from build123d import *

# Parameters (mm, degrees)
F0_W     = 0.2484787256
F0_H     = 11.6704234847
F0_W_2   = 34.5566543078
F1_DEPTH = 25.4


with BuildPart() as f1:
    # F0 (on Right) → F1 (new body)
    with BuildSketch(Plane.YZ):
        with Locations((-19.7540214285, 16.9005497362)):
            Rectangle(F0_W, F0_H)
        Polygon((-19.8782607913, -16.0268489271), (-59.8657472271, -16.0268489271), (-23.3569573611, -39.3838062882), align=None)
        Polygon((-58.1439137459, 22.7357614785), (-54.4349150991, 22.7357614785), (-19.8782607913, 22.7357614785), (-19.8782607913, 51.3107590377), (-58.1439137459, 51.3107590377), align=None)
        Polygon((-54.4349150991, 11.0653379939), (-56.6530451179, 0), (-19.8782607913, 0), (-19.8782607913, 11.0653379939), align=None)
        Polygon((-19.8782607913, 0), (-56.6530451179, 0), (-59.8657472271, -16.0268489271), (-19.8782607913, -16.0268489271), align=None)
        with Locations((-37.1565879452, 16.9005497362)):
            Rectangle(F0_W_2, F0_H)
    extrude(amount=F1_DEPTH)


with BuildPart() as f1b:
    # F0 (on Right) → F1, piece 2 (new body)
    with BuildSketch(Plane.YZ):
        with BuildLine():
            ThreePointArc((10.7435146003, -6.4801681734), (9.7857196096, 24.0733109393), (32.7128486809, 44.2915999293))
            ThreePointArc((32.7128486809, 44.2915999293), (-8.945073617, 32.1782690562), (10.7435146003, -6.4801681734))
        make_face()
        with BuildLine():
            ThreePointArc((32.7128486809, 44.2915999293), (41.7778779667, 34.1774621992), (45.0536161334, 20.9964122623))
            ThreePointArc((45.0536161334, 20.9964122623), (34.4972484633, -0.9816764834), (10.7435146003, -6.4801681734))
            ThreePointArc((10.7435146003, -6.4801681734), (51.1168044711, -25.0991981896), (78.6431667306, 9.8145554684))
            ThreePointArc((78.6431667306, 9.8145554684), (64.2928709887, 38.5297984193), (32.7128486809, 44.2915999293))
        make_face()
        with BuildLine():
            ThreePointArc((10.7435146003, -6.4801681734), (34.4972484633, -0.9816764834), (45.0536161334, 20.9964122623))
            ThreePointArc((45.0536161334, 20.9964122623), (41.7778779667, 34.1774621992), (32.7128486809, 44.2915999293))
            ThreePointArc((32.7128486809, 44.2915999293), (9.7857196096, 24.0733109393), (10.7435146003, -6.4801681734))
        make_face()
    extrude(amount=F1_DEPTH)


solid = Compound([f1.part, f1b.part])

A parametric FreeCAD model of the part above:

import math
import FreeCAD as App
import Part
import Sketcher

V = App.Vector
Q = App.Units.Quantity


def add_polygon(sketch, points):
    """Adds a closed chain of lines whose ends are joined by coincident constraints."""
    first, n = sketch.GeometryCount, len(points)
    for a, b in zip(points, points[1:] + points[:1]):
        sketch.addGeometry(Part.LineSegment(App.Vector(*a, 0), App.Vector(*b, 0)), False)
    for i in range(n):
        sketch.addConstraint(Sketcher.Constraint("Coincident", first + i, 2, first + (i + 1) % n, 1))

doc = App.newDocument("Part")
body = doc.addObject("PartDesign::Body", "Body")

# Sketch on YZ plane
sketch1 = doc.addObject("Sketcher::SketchObject", "Sketch")
body.addObject(sketch1)
sketch1.AttachmentSupport = (doc.YZ_Plane, [""])
sketch1.MapMode = "FlatFace"
add_polygon(sketch1, [(-19.88, 11.07), (-19.63, 11.07), (-19.63, 22.74), (-19.88, 22.74), (-19.88, 51.31), (-58.14, 51.31), (-58.14, 22.74), (-54.43, 22.74), (-54.43, 11.07), (-59.87, -16.03), (-23.36, -39.38), (-19.88, -16.03)])  # lines 0-11
sketch1.addConstraint(Sketcher.Constraint("Horizontal", 0))
sketch1.addConstraint(Sketcher.Constraint("Vertical", 1))
sketch1.addConstraint(Sketcher.Constraint("Horizontal", 2))
sketch1.addConstraint(Sketcher.Constraint("Vertical", 3))
sketch1.addConstraint(Sketcher.Constraint("Horizontal", 4))
sketch1.addConstraint(Sketcher.Constraint("Vertical", 5))
sketch1.addConstraint(Sketcher.Constraint("Horizontal", 6))
sketch1.addConstraint(Sketcher.Constraint("Vertical", 7))
sketch1.addConstraint(Sketcher.Constraint("Vertical", 11))
sketch1.addConstraint(Sketcher.Constraint("Horizontal", 2, 2, 5, 2))
sketch1.addConstraint(Sketcher.Constraint("Horizontal", 0, 2, 7, 2))
sketch1.addConstraint(Sketcher.Constraint("Horizontal", 8, 2, 10, 2))
sketch1.addConstraint(Sketcher.Constraint("Vertical", 3, 2, 10, 2))
sketch1.addConstraint(Sketcher.Constraint("DistanceY", 3, 1, 3, 2, Q("1.1249999 in")))
sketch1.addConstraint(Sketcher.Constraint("DistanceX", 6, 1, 6, 2, Q("3.708999 mm")))
sketch1.addConstraint(Sketcher.Constraint("DistanceX", 0, 1, 0, 2, Q("0.248479 mm")))
sketch1.addConstraint(Sketcher.Constraint("Distance", 8, Q("27.631151 mm")))
sketch1.addConstraint(Sketcher.Constraint("Distance", 10, Q("23.614588 mm")))
sketch1.addConstraint(Sketcher.Constraint("DistanceX", 4, 2, 4, 1, Q("38.265653 mm")))
sketch1.addConstraint(Sketcher.Constraint("DistanceY", 1, 1, 1, 2, Q("11.670423 mm")))
sketch1.addConstraint(Sketcher.Constraint("DistanceY", 11, 1, 11, 2, Q("27.092187 mm")))
sketch1.addConstraint(Sketcher.Constraint("DistanceY", -1, 1, 1, 2, Q("22.735761 mm")))
sketch1.addConstraint(Sketcher.Constraint("DistanceX", 2, 2, -1, 1, Q("19.878261 mm")))
sketch1.addConstraint(Sketcher.Constraint("DistanceX", 8, 2, 9, 2, Q("36.50879 mm")))
pad1 = doc.addObject("PartDesign::Pad", "Pad")
body.addObject(pad1)
pad1.Profile = sketch1
pad1.Length = Q("1 in")
body2 = doc.addObject("PartDesign::Body", "Body001")

# Sketch on YZ plane
sketch2 = doc.addObject("Sketcher::SketchObject", "Sketch001")
body2.addObject(sketch2)
sketch2.AttachmentSupport = (doc.getObject("YZ_Plane001"), [""])
sketch2.MapMode = "FlatFace"
sketch2.addGeometry(Part.ArcOfCircle(Part.Circle(V(17, 21, 0), V(0, 0, 1), 28), math.radians(56), math.radians(257)), False)
sketch2.addGeometry(Part.ArcOfCircle(Part.Circle(V(43, 10, 0), V(0, 0, 1), 36), math.radians(-153), math.radians(106)), False)
sketch2.addConstraint(Sketcher.Constraint("Coincident", 0, 1, 1, 2))
sketch2.addConstraint(Sketcher.Constraint("Coincident", 1, 1, 0, 2))
sketch2.addConstraint(Sketcher.Constraint("Radius", 1, Q("35.90505 mm")))
sketch2.addConstraint(Sketcher.Constraint("DistanceY", -1, 1, 1, 3, Q("0.3863998 in")))
sketch2.addConstraint(Sketcher.Constraint("Radius", 0, Q("28.157094 mm")))
sketch2.addConstraint(Sketcher.Constraint("DistanceY", -1, 1, 0, 1, Q("44.2916 mm")))
sketch2.addConstraint(Sketcher.Constraint("DistanceX", -1, 1, 0, 3, Q("16.896522 mm")))
sketch2.addConstraint(Sketcher.Constraint("DistanceX", -1, 1, 0, 1, Q("32.712849 mm")))
pad2 = doc.addObject("PartDesign::Pad", "Pad001")
body2.addObject(pad2)
pad2.Profile = sketch2
pad2.Length = Q("1 in")

doc.recompute()
